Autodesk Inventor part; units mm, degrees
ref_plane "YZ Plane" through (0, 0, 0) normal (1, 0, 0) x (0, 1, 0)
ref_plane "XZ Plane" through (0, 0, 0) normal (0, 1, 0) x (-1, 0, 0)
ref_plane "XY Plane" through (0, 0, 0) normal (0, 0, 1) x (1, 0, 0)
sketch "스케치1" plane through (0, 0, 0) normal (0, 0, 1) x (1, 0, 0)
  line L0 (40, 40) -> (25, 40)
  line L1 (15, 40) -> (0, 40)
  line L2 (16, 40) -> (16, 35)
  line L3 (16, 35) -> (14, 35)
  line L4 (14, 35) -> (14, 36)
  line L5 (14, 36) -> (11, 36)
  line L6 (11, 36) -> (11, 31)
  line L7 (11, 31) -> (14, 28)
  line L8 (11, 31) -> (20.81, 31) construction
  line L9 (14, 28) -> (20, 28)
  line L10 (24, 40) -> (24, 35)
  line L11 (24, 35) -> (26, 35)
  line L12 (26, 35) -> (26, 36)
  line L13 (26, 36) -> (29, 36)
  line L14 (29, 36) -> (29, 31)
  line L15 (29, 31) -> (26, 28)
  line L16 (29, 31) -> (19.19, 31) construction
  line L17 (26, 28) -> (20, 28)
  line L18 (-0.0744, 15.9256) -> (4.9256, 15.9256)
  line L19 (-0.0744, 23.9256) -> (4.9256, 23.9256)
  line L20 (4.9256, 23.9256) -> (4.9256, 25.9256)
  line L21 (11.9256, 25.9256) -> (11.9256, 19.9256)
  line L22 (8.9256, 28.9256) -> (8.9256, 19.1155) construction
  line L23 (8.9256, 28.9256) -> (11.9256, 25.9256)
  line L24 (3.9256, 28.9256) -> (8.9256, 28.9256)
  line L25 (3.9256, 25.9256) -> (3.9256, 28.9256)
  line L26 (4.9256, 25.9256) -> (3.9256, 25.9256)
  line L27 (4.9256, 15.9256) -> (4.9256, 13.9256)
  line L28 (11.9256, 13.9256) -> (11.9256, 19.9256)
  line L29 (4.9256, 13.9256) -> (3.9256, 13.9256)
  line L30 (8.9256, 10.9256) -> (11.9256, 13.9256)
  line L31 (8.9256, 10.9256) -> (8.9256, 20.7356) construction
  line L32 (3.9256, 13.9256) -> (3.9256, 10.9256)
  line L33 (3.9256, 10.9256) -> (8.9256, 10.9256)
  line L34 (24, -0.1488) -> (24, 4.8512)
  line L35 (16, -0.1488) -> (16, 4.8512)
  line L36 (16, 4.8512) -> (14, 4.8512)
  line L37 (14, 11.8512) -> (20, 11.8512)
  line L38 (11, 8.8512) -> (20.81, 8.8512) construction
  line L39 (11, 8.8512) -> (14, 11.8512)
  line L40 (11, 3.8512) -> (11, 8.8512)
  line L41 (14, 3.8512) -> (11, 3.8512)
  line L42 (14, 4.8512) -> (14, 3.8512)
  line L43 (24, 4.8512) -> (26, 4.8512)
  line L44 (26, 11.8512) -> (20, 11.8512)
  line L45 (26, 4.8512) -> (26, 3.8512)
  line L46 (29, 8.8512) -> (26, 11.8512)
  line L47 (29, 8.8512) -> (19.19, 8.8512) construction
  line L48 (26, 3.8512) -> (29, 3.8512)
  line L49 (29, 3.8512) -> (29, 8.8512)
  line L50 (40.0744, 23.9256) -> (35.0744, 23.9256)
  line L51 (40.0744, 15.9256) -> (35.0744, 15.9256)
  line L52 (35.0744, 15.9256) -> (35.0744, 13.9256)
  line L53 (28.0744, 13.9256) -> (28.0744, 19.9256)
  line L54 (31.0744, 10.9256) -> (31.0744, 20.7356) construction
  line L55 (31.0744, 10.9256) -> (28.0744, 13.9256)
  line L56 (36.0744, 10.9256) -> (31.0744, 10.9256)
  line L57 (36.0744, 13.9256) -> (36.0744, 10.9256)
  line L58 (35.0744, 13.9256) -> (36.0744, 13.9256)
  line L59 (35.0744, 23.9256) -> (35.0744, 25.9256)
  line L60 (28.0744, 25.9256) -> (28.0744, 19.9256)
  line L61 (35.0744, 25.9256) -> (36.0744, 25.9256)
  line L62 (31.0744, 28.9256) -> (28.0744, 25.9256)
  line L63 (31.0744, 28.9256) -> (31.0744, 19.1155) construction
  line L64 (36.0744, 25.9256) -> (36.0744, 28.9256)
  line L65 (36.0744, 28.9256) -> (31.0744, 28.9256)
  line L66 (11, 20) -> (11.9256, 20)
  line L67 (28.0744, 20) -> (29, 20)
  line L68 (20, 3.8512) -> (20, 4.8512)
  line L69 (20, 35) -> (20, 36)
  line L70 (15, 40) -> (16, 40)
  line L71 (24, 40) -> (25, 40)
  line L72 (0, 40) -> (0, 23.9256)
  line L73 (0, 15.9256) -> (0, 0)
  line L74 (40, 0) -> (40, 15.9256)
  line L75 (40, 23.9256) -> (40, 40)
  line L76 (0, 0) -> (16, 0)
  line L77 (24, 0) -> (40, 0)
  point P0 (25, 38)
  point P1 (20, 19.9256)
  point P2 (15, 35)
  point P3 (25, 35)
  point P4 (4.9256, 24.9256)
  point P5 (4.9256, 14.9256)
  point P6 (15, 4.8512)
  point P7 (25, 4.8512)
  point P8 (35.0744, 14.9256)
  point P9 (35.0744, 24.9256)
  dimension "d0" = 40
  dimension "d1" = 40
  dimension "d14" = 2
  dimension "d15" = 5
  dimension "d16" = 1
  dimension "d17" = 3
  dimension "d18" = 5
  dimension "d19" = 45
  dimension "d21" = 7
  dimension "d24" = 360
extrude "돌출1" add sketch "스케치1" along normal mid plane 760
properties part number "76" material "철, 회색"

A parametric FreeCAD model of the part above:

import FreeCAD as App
import Part
import Sketcher

V = App.Vector
Q = App.Units.Quantity


def add_polygon(sketch, points):
    """Adds a closed chain of lines whose ends are joined by coincident constraints."""
    first, n = sketch.GeometryCount, len(points)
    for a, b in zip(points, points[1:] + points[:1]):
        sketch.addGeometry(Part.LineSegment(App.Vector(*a, 0), App.Vector(*b, 0)), False)
    for i in range(n):
        sketch.addConstraint(Sketcher.Constraint("Coincident", first + i, 2, first + (i + 1) % n, 1))

doc = App.newDocument("Part")
body = doc.addObject("PartDesign::Body", "Body")

# Sketch on XY plane
sketch1 = body.newObject("Sketcher::SketchObject", "Sketch")
sketch1.AttachmentSupport = (doc.getObject("XY_Plane"), [""])
sketch1.MapMode = "FlatFace"
add_polygon(sketch1, [(40, 23.9), (40, 40), (24, 40), (24, 35), (26, 35), (26, 36), (29, 36), (29, 31), (26, 28), (14, 28), (11, 31), (11, 36), (14, 36), (14, 35), (16, 35), (16, 40), (0, 40), (0, 23.9), (4.9, 23.9), (4.9, 25.9), (3.9, 25.9), (3.9, 28.9), (8.9, 28.9), (11.9, 25.9), (11.9, 13.9), (8.9, 10.9), (3.9, 10.9), (3.9, 13.9), (4.9, 13.9), (4.9, 15.9), (0, 15.9), (0, 0), (16, 0), (16, 4.9), (14, 4.9), (14, 3.9), (11, 3.9), (11, 8.9), (14, 11.9), (26, 11.9), (29, 8.9), (29, 3.9), (26, 3.9), (26, 4.9), (24, 4.9), (24, 0), (40, 0), (40, 15.9), (35.1, 15.9), (35.1, 13.9), (36.1, 13.9), (36.1, 10.9), (31.1, 10.9), (28.1, 13.9), (28.1, 25.9), (31.1, 28.9), (36.1, 28.9), (36.1, 25.9), (35.1, 25.9), (35.1, 23.9)])  # lines 0-59
sketch1.addConstraint([
    Sketcher.Constraint("Vertical", 0),
    Sketcher.Constraint("Horizontal", 1),
    Sketcher.Constraint("Vertical", 2),
    Sketcher.Constraint("Horizontal", 3),
    Sketcher.Constraint("Vertical", 4),
    Sketcher.Constraint("Horizontal", 5),
    Sketcher.Constraint("Vertical", 6),
    Sketcher.Constraint("Horizontal", 8),
    Sketcher.Constraint("Vertical", 10),
    Sketcher.Constraint("Horizontal", 11),
    Sketcher.Constraint("Vertical", 12),
    Sketcher.Constraint("Horizontal", 13),
    Sketcher.Constraint("Vertical", 14),
    Sketcher.Constraint("Horizontal", 15),
    Sketcher.Constraint("Vertical", 16),
    Sketcher.Constraint("Horizontal", 17),
    Sketcher.Constraint("Vertical", 18),
    Sketcher.Constraint("Horizontal", 19),
    Sketcher.Constraint("Vertical", 20),
    Sketcher.Constraint("Horizontal", 21),
    Sketcher.Constraint("Vertical", 23),
    Sketcher.Constraint("Horizontal", 25),
    Sketcher.Constraint("Vertical", 26),
    Sketcher.Constraint("Horizontal", 27),
    Sketcher.Constraint("Vertical", 28),
    Sketcher.Constraint("Horizontal", 29),
    Sketcher.Constraint("Vertical", 30),
    Sketcher.Constraint("Horizontal", 31),
    Sketcher.Constraint("Vertical", 32),
    Sketcher.Constraint("Horizontal", 33),
    Sketcher.Constraint("Vertical", 34),
    Sketcher.Constraint("Horizontal", 35),
    Sketcher.Constraint("Vertical", 36),
    Sketcher.Constraint("Horizontal", 38),
    Sketcher.Constraint("Vertical", 40),
    Sketcher.Constraint("Horizontal", 41),
    Sketcher.Constraint("Vertical", 42),
    Sketcher.Constraint("Horizontal", 43),
    Sketcher.Constraint("Vertical", 44),
    Sketcher.Constraint("Horizontal", 45),
    Sketcher.Constraint("Vertical", 46),
    Sketcher.Constraint("Horizontal", 47),
    Sketcher.Constraint("Vertical", 48),
    Sketcher.Constraint("Horizontal", 49),
    Sketcher.Constraint("Vertical", 50),
    Sketcher.Constraint("Horizontal", 51),
    Sketcher.Constraint("Vertical", 53),
    Sketcher.Constraint("Horizontal", 55),
    Sketcher.Constraint("Vertical", 56),
    Sketcher.Constraint("Horizontal", 57),
    Sketcher.Constraint("Vertical", 58),
    Sketcher.Constraint("Horizontal", 59),
    Sketcher.Constraint("Coincident", 30, 2, -1, 1),
    Sketcher.Constraint("PointOnObject", 15, 2, -2),
    Sketcher.Constraint("PointOnObject", 44, 2, -1),
    Sketcher.Constraint("Perpendicular", 7, 9),
    Sketcher.Constraint("Parallel", 9, 22),
    Sketcher.Constraint("Perpendicular", 22, 24),
    Sketcher.Constraint("Parallel", 24, 37),
    Sketcher.Constraint("Perpendicular", 37, 39),
    Sketcher.Constraint("Parallel", 39, 52),
    Sketcher.Constraint("Perpendicular", 52, 54),
    Sketcher.Constraint("Horizontal", 6, 2, 9, 2),
    Sketcher.Constraint("Horizontal", 5, 2, 10, 2),
    Sketcher.Constraint("Horizontal", 3, 2, 12, 2),
    Sketcher.Constraint("Horizontal", 1, 2, 14, 2),
    Sketcher.Constraint("Horizontal", 19, 2, 22, 2),
    Sketcher.Constraint("Horizontal", 23, 2, 26, 2),
    Sketcher.Constraint("Horizontal", 36, 2, 39, 2),
    Sketcher.Constraint("Horizontal", 35, 2, 40, 2),
    Sketcher.Constraint("Horizontal", 33, 2, 42, 2),
    Sketcher.Constraint("Horizontal", 29, 2, 46, 2),
    Sketcher.Constraint("Horizontal", 27, 2, 48, 2),
    Sketcher.Constraint("Horizontal", 25, 2, 50, 2),
    Sketcher.Constraint("Horizontal", 49, 2, 52, 2),
    Sketcher.Constraint("Horizontal", 22, 2, 53, 2),
    Sketcher.Constraint("Horizontal", 21, 2, 54, 2),
    Sketcher.Constraint("Horizontal", 53, 2, 56, 2),
    Sketcher.Constraint("Horizontal", 17, 2, 58, 2),
    Sketcher.Constraint("Vertical", 4, 2, 7, 2),
    Sketcher.Constraint("Vertical", 8, 2, 11, 2),
    Sketcher.Constraint("Vertical", 21, 2, 24, 2),
    Sketcher.Constraint("Vertical", 20, 2, 25, 2),
    Sketcher.Constraint("Vertical", 18, 2, 27, 2),
    Sketcher.Constraint("Vertical", 14, 2, 31, 2),
    Sketcher.Constraint("Vertical", 12, 2, 33, 2),
    Sketcher.Constraint("Vertical", 10, 2, 35, 2),
    Sketcher.Constraint("Vertical", 34, 2, 37, 2),
    Sketcher.Constraint("Vertical", 7, 2, 38, 2),
    Sketcher.Constraint("Vertical", 6, 2, 39, 2),
    Sketcher.Constraint("Vertical", 38, 2, 41, 2),
    Sketcher.Constraint("Vertical", 2, 2, 43, 2),
    Sketcher.Constraint("Vertical", 0, 2, 45, 2),
    Sketcher.Constraint("Vertical", 50, 2, 55, 2),
    Sketcher.Constraint("Vertical", 48, 2, 57, 2),
    Sketcher.Constraint("Equal", 3, 13),
    Sketcher.Constraint("Equal", 1, 15),
    Sketcher.Constraint("Equal", 29, 47),
    Sketcher.Constraint("Equal", 27, 49),
    Sketcher.Constraint("Equal", 25, 51),
    Sketcher.Constraint("Equal", 55, 2),
    Sketcher.Constraint("Equal", 57, 4),
    Sketcher.Constraint("Equal", 2, 6),
    Sketcher.Constraint("Equal", 43, 18),
    Sketcher.Constraint("Equal", 41, 20),
    Sketcher.Constraint("Equal", 38, 23),
    Sketcher.Constraint("Equal", 18, 28),
    Sketcher.Constraint("Equal", 12, 34),
    Sketcher.Constraint("Equal", 14, 36),
    Sketcher.Constraint("DistanceX", 3, 1, 3, 2, Q("2 mm")),
    Sketcher.Constraint("DistanceX", 5, 1, 5, 2, Q("3 mm")),
    Sketcher.Constraint("DistanceX", 19, 2, 19, 1, Q("1 mm")),
    Sketcher.Constraint("DistanceX", 21, 1, 21, 2, Q("5 mm")),
    Sketcher.Constraint("DistanceX", -1, 1, 0, 2, Q("40 mm")),
    Sketcher.Constraint("DistanceY", -1, 1, 0, 2, Q("40 mm")),
    Sketcher.Constraint("DistanceX", 1, 2, 1, 1, Q("16 mm")),
    Sketcher.Constraint("DistanceX", 17, 1, 17, 2, Q("4.9256 mm")),
    Sketcher.Constraint("DistanceY", 0, 1, 0, 2, Q("16.0744 mm")),
    Sketcher.Constraint("DistanceY", 32, 1, 32, 2, Q("4.8512 mm")),
])
pad1 = body.newObject("PartDesign::Pad", "Pad")
pad1.Profile = sketch1
pad1.Length = 760
pad1.Midplane = True

doc.recompute()
